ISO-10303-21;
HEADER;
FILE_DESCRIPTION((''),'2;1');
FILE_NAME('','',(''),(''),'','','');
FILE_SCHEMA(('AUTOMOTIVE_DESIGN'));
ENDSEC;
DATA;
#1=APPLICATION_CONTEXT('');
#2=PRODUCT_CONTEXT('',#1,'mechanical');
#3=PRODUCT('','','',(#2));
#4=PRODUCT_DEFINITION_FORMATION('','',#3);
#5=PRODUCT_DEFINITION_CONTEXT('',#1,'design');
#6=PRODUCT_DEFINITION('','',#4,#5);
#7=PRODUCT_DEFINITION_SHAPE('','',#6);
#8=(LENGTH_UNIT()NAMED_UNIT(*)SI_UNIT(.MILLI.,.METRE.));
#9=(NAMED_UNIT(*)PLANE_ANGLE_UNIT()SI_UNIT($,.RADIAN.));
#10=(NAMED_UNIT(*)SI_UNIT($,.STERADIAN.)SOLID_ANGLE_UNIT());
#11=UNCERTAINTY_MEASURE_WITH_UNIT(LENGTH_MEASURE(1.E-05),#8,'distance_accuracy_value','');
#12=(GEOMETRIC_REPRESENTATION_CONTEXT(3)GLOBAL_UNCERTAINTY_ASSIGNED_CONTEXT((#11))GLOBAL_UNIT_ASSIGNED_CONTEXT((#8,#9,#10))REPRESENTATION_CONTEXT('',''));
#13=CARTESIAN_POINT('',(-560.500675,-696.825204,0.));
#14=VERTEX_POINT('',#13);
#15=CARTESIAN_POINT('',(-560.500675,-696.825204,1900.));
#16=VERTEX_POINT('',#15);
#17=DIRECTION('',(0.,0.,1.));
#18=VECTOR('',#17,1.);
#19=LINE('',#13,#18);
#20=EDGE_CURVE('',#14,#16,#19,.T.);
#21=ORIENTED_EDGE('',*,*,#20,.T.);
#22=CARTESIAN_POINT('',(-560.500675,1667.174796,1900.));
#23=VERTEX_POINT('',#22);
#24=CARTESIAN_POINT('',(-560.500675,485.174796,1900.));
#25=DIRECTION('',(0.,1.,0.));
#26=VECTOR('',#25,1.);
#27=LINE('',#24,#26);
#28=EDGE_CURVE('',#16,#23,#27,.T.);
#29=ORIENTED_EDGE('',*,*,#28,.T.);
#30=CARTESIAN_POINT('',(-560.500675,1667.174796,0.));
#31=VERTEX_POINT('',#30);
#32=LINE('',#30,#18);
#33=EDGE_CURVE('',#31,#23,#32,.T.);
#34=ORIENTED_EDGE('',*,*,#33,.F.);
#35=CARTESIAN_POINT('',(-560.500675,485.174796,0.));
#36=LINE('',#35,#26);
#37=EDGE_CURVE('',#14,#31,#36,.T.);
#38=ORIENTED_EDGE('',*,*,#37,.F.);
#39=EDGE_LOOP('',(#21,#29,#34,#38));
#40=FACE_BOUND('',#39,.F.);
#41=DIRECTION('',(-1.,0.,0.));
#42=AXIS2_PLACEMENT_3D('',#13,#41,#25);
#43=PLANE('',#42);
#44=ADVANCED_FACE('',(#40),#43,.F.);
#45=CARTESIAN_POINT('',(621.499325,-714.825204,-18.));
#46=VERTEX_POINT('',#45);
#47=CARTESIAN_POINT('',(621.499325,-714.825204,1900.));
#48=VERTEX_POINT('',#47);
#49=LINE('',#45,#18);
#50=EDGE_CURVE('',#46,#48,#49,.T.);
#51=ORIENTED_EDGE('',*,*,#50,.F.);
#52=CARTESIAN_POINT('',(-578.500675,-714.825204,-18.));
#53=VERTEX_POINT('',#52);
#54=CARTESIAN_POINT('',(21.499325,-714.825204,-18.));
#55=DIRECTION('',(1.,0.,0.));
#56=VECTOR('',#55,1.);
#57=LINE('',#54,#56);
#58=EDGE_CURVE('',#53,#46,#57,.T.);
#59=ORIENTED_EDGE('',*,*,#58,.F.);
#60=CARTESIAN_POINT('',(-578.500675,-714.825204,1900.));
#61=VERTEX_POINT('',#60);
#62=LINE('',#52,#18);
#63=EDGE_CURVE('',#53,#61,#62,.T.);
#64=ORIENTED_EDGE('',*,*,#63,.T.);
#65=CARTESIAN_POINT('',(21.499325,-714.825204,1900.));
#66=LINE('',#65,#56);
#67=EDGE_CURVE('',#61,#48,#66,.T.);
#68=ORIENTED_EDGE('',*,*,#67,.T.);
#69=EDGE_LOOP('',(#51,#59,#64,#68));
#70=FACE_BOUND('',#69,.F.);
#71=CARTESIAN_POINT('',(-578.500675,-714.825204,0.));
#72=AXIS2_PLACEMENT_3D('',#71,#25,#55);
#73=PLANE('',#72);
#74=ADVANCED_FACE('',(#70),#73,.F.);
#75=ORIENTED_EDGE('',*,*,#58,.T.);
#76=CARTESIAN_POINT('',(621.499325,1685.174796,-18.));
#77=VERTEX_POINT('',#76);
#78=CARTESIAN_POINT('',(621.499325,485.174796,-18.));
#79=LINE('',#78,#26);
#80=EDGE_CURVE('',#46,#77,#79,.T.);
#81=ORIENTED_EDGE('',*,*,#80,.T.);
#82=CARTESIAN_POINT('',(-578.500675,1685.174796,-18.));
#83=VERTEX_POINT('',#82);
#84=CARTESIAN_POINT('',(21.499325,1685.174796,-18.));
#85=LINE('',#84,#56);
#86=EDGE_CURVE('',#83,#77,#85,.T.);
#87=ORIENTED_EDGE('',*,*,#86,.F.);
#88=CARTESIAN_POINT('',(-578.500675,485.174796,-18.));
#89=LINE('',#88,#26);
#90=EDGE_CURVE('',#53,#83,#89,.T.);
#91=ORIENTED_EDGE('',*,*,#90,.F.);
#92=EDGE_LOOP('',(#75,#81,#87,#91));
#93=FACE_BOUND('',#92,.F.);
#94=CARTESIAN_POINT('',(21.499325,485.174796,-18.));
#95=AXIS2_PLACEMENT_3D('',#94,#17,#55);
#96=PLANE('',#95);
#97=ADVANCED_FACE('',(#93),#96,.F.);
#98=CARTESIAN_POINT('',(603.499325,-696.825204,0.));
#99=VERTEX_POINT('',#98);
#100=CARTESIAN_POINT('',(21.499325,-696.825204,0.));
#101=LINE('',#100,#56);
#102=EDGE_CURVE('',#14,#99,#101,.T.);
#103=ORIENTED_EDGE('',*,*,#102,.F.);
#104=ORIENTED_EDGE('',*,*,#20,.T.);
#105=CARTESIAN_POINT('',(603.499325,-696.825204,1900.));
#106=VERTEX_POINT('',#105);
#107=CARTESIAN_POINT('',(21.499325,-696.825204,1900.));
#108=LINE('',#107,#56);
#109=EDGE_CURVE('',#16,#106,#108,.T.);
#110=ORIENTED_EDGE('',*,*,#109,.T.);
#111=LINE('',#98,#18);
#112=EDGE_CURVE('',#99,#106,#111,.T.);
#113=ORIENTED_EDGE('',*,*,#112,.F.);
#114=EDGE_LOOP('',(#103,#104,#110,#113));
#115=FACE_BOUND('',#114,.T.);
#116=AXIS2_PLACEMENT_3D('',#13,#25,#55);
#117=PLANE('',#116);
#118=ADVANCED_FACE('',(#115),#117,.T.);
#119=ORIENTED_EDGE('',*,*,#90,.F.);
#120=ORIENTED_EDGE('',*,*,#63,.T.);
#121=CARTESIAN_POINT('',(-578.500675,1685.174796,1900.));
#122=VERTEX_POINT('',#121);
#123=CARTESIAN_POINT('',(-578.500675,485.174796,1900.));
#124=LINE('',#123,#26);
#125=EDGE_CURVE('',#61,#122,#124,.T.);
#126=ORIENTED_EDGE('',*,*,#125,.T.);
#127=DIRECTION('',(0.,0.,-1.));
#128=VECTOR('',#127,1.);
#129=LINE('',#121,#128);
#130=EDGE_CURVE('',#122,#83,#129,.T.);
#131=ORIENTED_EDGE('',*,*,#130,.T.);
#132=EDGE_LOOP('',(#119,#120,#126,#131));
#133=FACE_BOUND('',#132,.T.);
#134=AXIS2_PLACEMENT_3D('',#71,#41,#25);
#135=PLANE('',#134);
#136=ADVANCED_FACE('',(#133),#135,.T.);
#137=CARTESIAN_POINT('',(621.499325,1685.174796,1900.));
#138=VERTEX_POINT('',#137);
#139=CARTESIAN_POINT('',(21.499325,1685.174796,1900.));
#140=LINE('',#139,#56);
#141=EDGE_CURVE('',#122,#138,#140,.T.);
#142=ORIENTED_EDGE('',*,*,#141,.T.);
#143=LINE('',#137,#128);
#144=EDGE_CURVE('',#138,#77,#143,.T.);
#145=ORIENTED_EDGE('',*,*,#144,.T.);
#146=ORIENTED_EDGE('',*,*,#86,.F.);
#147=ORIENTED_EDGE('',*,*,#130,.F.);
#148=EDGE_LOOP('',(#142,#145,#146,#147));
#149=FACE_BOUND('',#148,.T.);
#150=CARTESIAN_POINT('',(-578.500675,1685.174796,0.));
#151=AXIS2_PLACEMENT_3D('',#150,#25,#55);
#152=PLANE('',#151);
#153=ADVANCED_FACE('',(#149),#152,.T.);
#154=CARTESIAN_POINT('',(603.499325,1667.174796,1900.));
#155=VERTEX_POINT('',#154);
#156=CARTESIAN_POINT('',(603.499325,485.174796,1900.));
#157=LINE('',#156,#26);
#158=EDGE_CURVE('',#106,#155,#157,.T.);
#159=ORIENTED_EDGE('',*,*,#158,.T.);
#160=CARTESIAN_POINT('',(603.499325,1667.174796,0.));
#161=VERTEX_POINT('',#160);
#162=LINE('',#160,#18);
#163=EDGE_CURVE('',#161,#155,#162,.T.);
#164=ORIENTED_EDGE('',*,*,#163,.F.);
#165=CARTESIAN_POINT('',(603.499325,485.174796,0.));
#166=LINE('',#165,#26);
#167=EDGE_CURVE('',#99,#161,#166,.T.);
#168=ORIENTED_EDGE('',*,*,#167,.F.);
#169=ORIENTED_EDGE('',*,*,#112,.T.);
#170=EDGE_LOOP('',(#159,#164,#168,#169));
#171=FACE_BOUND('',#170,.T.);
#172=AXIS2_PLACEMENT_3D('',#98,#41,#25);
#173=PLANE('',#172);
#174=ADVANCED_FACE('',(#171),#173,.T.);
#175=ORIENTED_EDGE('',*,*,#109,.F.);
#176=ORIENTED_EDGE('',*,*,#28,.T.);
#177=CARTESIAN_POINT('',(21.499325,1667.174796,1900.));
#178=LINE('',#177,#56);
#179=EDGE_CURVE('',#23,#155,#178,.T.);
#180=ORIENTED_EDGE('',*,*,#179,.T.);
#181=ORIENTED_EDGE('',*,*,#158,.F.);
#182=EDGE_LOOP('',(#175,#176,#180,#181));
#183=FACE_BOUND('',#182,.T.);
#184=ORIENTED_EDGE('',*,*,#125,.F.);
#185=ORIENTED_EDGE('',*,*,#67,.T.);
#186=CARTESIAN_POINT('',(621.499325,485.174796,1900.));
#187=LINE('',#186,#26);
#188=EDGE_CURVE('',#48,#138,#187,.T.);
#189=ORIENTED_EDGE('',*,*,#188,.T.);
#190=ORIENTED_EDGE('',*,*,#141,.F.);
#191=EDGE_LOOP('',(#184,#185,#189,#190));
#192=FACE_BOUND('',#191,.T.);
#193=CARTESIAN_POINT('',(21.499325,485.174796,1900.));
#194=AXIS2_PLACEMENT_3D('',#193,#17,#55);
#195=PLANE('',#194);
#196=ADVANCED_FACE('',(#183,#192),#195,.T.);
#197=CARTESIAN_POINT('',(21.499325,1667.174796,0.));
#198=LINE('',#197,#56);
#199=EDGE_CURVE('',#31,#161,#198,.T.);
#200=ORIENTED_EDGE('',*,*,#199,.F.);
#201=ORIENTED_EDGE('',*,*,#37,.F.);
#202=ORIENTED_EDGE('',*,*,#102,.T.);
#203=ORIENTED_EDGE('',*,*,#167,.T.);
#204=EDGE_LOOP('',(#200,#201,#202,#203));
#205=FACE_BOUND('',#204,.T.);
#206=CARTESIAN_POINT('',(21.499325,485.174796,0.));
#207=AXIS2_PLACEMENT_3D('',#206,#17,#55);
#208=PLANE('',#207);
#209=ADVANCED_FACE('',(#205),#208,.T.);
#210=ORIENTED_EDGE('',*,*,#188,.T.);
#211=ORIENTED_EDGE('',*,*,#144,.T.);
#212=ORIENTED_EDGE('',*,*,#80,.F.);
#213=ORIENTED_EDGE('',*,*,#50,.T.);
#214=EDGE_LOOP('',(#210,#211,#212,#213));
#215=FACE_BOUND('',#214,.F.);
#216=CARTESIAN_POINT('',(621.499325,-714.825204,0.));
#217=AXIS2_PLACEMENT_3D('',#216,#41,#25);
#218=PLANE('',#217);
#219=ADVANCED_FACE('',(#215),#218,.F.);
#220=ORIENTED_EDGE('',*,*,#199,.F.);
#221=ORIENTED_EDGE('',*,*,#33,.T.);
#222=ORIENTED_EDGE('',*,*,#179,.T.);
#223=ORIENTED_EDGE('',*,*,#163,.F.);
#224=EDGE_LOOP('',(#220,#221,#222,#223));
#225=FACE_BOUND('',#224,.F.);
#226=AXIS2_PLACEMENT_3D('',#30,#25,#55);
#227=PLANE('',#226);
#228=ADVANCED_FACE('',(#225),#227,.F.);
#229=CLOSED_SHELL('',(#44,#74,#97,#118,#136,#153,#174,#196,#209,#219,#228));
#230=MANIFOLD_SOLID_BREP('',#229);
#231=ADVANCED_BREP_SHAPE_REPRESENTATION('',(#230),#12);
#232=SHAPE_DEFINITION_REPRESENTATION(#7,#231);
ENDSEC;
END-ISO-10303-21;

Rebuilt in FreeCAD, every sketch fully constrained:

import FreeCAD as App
import Part
import Sketcher

V = App.Vector


def add_polygon(sketch, points):
    """Adds a closed chain of lines whose ends are joined by coincident constraints."""
    first, n = sketch.GeometryCount, len(points)
    for a, b in zip(points, points[1:] + points[:1]):
        sketch.addGeometry(Part.LineSegment(App.Vector(*a, 0), App.Vector(*b, 0)), False)
    for i in range(n):
        sketch.addConstraint(Sketcher.Constraint("Coincident", first + i, 2, first + (i + 1) % n, 1))

doc = App.newDocument("Part")
params = doc.addObject("Spreadsheet::Sheet", "Params")
for row, (alias, value) in enumerate([
    ("sketch1_width", "1200 mm"),
    ("sketch1_height", "2400 mm"),
    ("pad1_length", "18 mm"),
    ("sketch2_width", "1200 mm"),
    ("sketch2_width2", "1164 mm"),
    ("sketch2_height", "2400 mm"),
    ("sketch2_height2", "2364 mm"),
    ("pad2_length", "1900 mm"),
], start=1):
    params.set(f"A{row}", alias)
    params.set(f"B{row}", "=" + value)
    params.setAlias(f"B{row}", alias)

body = doc.addObject("PartDesign::Body", "Body")

# Sketch on XY plane
sketch1 = body.newObject("Sketcher::SketchObject", "Sketch")
sketch1.AttachmentSupport = (doc.getObject("XY_Plane"), [""])
sketch1.MapMode = "FlatFace"
add_polygon(sketch1, [(-579, 1685), (-579, -715), (621, -715), (621, 1685)])  # lines 0-3
sketch1.addConstraint(Sketcher.Constraint("Vertical", 0))
sketch1.addConstraint(Sketcher.Constraint("Horizontal", 1))
sketch1.addConstraint(Sketcher.Constraint("Vertical", 2))
sketch1.addConstraint(Sketcher.Constraint("Horizontal", 3))
sketch1.addConstraint(Sketcher.Constraint("DistanceX", 1, 1, 1, 2, 1200.0))
sketch1.addConstraint(Sketcher.Constraint("DistanceY", 0, 2, 0, 1, 2400.0))
sketch1.addConstraint(Sketcher.Constraint("DistanceX", 0, 2, -1, 1, 578.500675))
sketch1.addConstraint(Sketcher.Constraint("DistanceY", 0, 2, -1, 1, 714.825204))
sketch1.setExpression("Constraints[8]", "Params.sketch1_width")
sketch1.setExpression("Constraints[9]", "Params.sketch1_height")
pad1 = body.newObject("PartDesign::Pad", "Pad")
pad1.Profile = sketch1
pad1.setExpression("Length", "Params.pad1_length")
pad1.Reversed = True

# Sketch on XY plane
sketch2 = body.newObject("Sketcher::SketchObject", "Sketch001")
sketch2.AttachmentSupport = (doc.getObject("XY_Plane"), [""])
sketch2.MapMode = "FlatFace"
add_polygon(sketch2, [(-579, 1685), (-579, -715), (621, -715), (621, 1685)])  # lines 0-3
add_polygon(sketch2, [(603, -697), (-561, -697), (-561, 1667), (603, 1667)])  # lines 4-7
sketch2.addConstraint(Sketcher.Constraint("Vertical", 0))
sketch2.addConstraint(Sketcher.Constraint("Horizontal", 1))
sketch2.addConstraint(Sketcher.Constraint("Vertical", 2))
sketch2.addConstraint(Sketcher.Constraint("Horizontal", 3))
sketch2.addConstraint(Sketcher.Constraint("Horizontal", 4))
sketch2.addConstraint(Sketcher.Constraint("Vertical", 5))
sketch2.addConstraint(Sketcher.Constraint("Horizontal", 6))
sketch2.addConstraint(Sketcher.Constraint("Vertical", 7))
sketch2.addConstraint(Sketcher.Constraint("DistanceX", 1, 1, 1, 2, 1200.0))
sketch2.addConstraint(Sketcher.Constraint("DistanceX", 4, 2, 4, 1, 1164.0))
sketch2.addConstraint(Sketcher.Constraint("DistanceY", 0, 2, 0, 1, 2400.0))
sketch2.addConstraint(Sketcher.Constraint("DistanceY", 5, 1, 5, 2, 2364.0))
sketch2.addConstraint(Sketcher.Constraint("DistanceX", 0, 2, 4, 2, 18.0))
sketch2.addConstraint(Sketcher.Constraint("DistanceY", 0, 2, 4, 2, 18.0))
sketch2.addConstraint(Sketcher.Constraint("DistanceX", 0, 2, -1, 1, 578.500675))
sketch2.addConstraint(Sketcher.Constraint("DistanceY", 0, 2, -1, 1, 714.825204))
sketch2.setExpression("Constraints[16]", "Params.sketch2_width")
sketch2.setExpression("Constraints[17]", "Params.sketch2_width2")
sketch2.setExpression("Constraints[18]", "Params.sketch2_height")
sketch2.setExpression("Constraints[19]", "Params.sketch2_height2")
pad2 = body.newObject("PartDesign::Pad", "Pad001")
pad2.Profile = sketch2
pad2.setExpression("Length", "Params.pad2_length")

doc.recompute()
